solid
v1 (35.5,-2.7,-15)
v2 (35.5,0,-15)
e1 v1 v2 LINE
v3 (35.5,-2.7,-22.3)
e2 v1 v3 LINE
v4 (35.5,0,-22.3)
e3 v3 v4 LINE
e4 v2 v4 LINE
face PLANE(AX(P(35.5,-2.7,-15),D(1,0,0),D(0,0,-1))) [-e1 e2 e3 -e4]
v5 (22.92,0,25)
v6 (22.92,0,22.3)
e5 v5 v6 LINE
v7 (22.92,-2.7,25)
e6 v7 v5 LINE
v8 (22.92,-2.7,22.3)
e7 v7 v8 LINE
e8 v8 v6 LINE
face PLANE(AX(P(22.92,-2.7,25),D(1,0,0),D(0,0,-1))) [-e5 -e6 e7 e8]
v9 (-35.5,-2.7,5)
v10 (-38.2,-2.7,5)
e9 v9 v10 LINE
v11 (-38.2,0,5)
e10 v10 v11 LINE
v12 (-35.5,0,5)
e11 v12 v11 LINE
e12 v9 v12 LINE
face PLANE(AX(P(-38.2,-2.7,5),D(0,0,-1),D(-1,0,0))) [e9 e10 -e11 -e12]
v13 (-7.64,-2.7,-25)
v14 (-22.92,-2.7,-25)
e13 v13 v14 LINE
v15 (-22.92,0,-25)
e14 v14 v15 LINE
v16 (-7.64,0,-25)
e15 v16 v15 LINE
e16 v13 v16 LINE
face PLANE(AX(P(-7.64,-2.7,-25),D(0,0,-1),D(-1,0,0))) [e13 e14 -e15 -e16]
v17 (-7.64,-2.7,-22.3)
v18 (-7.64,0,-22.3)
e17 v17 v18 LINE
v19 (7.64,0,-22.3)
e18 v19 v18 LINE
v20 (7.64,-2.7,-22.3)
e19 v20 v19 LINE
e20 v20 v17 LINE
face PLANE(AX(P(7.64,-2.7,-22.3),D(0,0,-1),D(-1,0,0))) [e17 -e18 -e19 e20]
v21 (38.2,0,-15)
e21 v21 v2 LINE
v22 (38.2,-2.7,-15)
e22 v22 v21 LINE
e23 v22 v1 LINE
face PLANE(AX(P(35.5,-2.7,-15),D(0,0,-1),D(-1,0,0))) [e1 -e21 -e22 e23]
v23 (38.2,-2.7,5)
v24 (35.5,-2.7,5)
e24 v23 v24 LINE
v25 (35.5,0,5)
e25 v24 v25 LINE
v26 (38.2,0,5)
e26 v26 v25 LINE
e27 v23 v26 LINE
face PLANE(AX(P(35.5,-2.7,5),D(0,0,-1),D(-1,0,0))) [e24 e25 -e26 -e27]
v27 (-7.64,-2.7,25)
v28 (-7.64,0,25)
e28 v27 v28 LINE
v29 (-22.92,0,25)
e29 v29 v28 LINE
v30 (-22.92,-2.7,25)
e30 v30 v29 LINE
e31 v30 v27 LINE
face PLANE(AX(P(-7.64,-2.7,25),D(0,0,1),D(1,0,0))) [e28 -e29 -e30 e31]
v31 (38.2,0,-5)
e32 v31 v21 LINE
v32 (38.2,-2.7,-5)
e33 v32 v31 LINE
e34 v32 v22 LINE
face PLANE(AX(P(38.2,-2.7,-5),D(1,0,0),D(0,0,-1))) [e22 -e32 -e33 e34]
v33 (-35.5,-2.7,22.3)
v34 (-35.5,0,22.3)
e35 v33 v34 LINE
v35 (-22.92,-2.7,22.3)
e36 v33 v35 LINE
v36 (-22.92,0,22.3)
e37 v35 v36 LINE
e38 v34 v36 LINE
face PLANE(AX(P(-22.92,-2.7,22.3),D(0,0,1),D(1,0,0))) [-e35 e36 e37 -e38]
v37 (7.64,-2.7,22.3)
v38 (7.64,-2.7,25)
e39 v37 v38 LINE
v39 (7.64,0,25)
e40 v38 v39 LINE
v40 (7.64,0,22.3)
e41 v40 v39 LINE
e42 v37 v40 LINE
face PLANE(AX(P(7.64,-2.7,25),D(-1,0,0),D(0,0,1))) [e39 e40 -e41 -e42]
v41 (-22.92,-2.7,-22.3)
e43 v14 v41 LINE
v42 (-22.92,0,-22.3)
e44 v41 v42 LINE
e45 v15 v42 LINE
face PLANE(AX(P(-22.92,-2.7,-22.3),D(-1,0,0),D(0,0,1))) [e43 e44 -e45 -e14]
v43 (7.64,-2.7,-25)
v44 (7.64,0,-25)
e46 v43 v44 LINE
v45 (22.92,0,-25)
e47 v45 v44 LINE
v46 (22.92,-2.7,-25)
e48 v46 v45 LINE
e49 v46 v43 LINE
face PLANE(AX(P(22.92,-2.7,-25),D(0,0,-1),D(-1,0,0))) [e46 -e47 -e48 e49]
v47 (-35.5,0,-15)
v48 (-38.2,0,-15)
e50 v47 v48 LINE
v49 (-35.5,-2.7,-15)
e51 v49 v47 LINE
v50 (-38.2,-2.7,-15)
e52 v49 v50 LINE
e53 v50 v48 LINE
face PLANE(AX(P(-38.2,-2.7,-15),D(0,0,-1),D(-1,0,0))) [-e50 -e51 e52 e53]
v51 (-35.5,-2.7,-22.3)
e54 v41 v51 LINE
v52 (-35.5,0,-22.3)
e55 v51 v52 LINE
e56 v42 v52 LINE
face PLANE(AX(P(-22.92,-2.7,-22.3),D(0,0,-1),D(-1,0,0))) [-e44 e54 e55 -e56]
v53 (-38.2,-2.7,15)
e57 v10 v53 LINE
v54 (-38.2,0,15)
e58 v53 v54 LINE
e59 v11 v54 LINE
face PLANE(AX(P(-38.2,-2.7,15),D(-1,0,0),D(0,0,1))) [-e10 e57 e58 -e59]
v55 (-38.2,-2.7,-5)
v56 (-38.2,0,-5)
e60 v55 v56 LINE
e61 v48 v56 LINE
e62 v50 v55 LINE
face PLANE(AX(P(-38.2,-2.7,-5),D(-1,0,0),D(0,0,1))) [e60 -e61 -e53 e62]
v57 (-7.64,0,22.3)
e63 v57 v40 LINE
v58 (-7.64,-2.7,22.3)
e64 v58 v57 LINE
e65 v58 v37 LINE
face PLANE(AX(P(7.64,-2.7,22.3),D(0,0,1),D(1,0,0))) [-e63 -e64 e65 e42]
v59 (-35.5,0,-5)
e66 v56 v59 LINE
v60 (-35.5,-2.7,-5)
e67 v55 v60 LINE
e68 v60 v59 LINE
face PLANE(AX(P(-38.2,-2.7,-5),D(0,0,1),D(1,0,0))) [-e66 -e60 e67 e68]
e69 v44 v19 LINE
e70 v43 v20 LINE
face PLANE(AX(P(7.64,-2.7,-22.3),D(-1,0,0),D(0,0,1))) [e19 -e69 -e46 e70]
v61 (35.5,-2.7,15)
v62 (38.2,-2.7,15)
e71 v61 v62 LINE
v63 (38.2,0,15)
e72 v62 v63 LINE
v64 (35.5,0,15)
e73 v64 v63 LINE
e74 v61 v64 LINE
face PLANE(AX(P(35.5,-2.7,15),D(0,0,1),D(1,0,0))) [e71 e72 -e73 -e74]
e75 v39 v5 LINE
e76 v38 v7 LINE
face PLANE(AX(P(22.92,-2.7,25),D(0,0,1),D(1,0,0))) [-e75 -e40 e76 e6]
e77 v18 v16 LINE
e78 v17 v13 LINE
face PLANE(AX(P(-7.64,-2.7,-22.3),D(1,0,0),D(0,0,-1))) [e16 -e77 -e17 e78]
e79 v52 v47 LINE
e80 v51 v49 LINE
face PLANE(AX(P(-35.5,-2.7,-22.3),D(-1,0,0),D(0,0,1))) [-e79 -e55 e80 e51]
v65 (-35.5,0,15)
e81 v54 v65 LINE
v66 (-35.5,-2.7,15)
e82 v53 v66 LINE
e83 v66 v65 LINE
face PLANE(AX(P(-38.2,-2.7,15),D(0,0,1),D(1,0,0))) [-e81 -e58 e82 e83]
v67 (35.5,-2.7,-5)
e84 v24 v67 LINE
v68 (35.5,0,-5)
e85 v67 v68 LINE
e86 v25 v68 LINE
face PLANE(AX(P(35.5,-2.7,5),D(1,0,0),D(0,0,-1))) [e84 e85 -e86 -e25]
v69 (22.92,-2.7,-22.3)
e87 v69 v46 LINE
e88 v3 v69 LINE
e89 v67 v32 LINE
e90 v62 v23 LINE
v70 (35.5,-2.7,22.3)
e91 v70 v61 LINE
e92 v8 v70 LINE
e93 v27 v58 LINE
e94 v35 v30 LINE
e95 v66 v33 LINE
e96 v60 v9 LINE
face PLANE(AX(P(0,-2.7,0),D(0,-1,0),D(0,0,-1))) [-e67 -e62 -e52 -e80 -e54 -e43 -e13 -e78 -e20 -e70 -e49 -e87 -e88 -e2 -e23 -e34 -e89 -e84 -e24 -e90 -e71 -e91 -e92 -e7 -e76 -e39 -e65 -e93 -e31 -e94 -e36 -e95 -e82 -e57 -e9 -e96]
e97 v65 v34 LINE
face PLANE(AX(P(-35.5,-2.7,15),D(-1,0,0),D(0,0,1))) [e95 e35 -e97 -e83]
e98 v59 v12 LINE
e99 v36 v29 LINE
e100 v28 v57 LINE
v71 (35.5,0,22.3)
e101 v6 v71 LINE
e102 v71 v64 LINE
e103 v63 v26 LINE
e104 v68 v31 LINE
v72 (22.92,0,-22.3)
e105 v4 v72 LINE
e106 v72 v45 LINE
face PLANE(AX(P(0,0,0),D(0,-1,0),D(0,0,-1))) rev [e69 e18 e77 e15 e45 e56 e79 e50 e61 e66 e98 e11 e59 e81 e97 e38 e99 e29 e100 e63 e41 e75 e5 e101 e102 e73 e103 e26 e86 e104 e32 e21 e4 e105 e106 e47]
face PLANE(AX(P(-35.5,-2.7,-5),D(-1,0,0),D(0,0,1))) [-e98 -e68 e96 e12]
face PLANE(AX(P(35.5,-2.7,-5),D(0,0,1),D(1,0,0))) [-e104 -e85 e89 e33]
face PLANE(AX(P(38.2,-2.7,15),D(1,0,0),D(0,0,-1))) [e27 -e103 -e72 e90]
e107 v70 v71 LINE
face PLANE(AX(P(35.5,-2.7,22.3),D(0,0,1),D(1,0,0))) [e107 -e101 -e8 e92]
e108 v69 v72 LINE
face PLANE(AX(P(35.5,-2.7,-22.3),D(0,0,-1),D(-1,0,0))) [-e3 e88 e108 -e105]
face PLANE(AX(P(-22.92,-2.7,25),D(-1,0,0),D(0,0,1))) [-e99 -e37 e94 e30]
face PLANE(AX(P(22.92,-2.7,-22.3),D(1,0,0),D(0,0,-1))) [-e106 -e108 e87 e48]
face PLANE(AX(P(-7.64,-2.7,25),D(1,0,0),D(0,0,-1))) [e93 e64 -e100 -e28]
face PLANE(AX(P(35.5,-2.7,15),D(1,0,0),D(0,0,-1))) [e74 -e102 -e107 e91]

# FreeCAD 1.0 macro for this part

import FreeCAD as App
import Part
import Sketcher
Q = App.Units.Quantity


def add_polygon(sketch, points):
    """Adds a closed chain of lines whose ends are joined by coincident constraints."""
    first, n = sketch.GeometryCount, len(points)
    for a, b in zip(points, points[1:] + points[:1]):
        sketch.addGeometry(Part.LineSegment(App.Vector(*a, 0), App.Vector(*b, 0)), False)
    for i in range(n):
        sketch.addConstraint(Sketcher.Constraint("Coincident", first + i, 2, first + (i + 1) % n, 1))

doc = App.newDocument("Part")
body = doc.addObject("PartDesign::Body", "Body")

sketch1 = body.newObject("Sketcher::SketchObject", "Sketch")
sketch1.AttachmentSupport = (doc.getObject("XZ_Plane"), [""])
sketch1.MapMode = "FlatFace"
add_polygon(sketch1, [(-22.9, -22.3), (-35.5, -22.3), (-35.5, -15), (-38.2, -15), (-38.2, -5), (-35.5, -5), (-35.5, 5), (-38.2, 5), (-38.2, 15), (-35.5, 15), (-35.5, 22.3), (-22.9, 22.3), (-22.9, 25), (-7.6, 25), (-7.6, 22.3), (7.6, 22.3), (7.6, 25), (22.9, 25), (22.9, 22.3), (35.5, 22.3), (35.5, 15), (38.2, 15), (38.2, 5), (35.5, 5), (35.5, -5), (38.2, -5), (38.2, -15), (35.5, -15), (35.5, -22.3), (22.9, -22.3), (22.9, -25), (7.6, -25), (7.6, -22.3), (-7.6, -22.3), (-7.6, -25), (-22.9, -25)])
sketch1.addConstraint(Sketcher.Constraint("Horizontal", 0))
sketch1.addConstraint(Sketcher.Constraint("Vertical", 1))
sketch1.addConstraint(Sketcher.Constraint("Horizontal", 2))
sketch1.addConstraint(Sketcher.Constraint("Vertical", 3))
sketch1.addConstraint(Sketcher.Constraint("Horizontal", 4))
sketch1.addConstraint(Sketcher.Constraint("Vertical", 5))
sketch1.addConstraint(Sketcher.Constraint("Horizontal", 6))
sketch1.addConstraint(Sketcher.Constraint("Vertical", 7))
sketch1.addConstraint(Sketcher.Constraint("Horizontal", 8))
sketch1.addConstraint(Sketcher.Constraint("Vertical", 9))
sketch1.addConstraint(Sketcher.Constraint("Horizontal", 10))
sketch1.addConstraint(Sketcher.Constraint("Vertical", 11))
sketch1.addConstraint(Sketcher.Constraint("Horizontal", 12))
sketch1.addConstraint(Sketcher.Constraint("Vertical", 13))
sketch1.addConstraint(Sketcher.Constraint("Horizontal", 14))
sketch1.addConstraint(Sketcher.Constraint("Vertical", 15))
sketch1.addConstraint(Sketcher.Constraint("Horizontal", 16))
sketch1.addConstraint(Sketcher.Constraint("Vertical", 17))
sketch1.addConstraint(Sketcher.Constraint("Horizontal", 18))
sketch1.addConstraint(Sketcher.Constraint("Vertical", 19))
sketch1.addConstraint(Sketcher.Constraint("Horizontal", 20))
sketch1.addConstraint(Sketcher.Constraint("Vertical", 21))
sketch1.addConstraint(Sketcher.Constraint("Horizontal", 22))
sketch1.addConstraint(Sketcher.Constraint("Vertical", 23))
sketch1.addConstraint(Sketcher.Constraint("Horizontal", 24))
sketch1.addConstraint(Sketcher.Constraint("Vertical", 25))
sketch1.addConstraint(Sketcher.Constraint("Horizontal", 26))
sketch1.addConstraint(Sketcher.Constraint("Vertical", 27))
sketch1.addConstraint(Sketcher.Constraint("Horizontal", 28))
sketch1.addConstraint(Sketcher.Constraint("Vertical", 29))
sketch1.addConstraint(Sketcher.Constraint("Horizontal", 30))
sketch1.addConstraint(Sketcher.Constraint("Vertical", 31))
sketch1.addConstraint(Sketcher.Constraint("Horizontal", 32))
sketch1.addConstraint(Sketcher.Constraint("Vertical", 33))
sketch1.addConstraint(Sketcher.Constraint("Horizontal", 34))
sketch1.addConstraint(Sketcher.Constraint("Vertical", 35))
sketch1.addConstraint(Sketcher.Constraint("Symmetric", 0, 2, 18, 2, -1, 1))
sketch1.addConstraint(Sketcher.Constraint("Symmetric", 2, 2, 20, 2, -1, 1))
sketch1.addConstraint(Sketcher.Constraint("Symmetric", 4, 2, 22, 2, -1, 1))
sketch1.addConstraint(Sketcher.Constraint("Symmetric", 6, 2, 24, 2, -1, 1))
sketch1.addConstraint(Sketcher.Constraint("Symmetric", 8, 2, 26, 2, -1, 1))
sketch1.addConstraint(Sketcher.Constraint("Symmetric", 10, 2, 28, 2, -1, 1))
sketch1.addConstraint(Sketcher.Constraint("Symmetric", 12, 2, 30, 2, -1, 1))
sketch1.addConstraint(Sketcher.Constraint("Symmetric", 14, 2, 32, 2, -1, 1))
sketch1.addConstraint(Sketcher.Constraint("Symmetric", 16, 2, 34, 2, -1, 1))
sketch1.addConstraint(Sketcher.Constraint("Symmetric", 12, 2, 15, 2, -2))
sketch1.addConstraint(Sketcher.Constraint("Symmetric", 10, 2, 17, 2, -2))
sketch1.addConstraint(Sketcher.Constraint("Symmetric", 8, 2, 19, 2, -2))
sketch1.addConstraint(Sketcher.Constraint("Symmetric", 6, 2, 21, 2, -2))
sketch1.addConstraint(Sketcher.Constraint("Horizontal", 10, 2, 13, 2))
sketch1.addConstraint(Sketcher.Constraint("Vertical", 1, 2, 4, 2))
sketch1.addConstraint(Sketcher.Constraint("Equal", 12, 14))
sketch1.addConstraint(Sketcher.Constraint("Equal", 3, 5))
sketch1.addConstraint(Sketcher.Constraint("Equal", 26, 11))
sketch1.addConstraint(Sketcher.Constraint("DistanceY", 3, 1, 3, 2, Q("10 mm")))
sketch1.addConstraint(Sketcher.Constraint("DistanceX", 2, 2, 2, 1, Q("2.7 mm")))
sketch1.addConstraint(Sketcher.Constraint("DistanceY", 1, 1, 1, 2, Q("7.3 mm")))
sketch1.addConstraint(Sketcher.Constraint("DistanceX", 0, 2, 0, 1, Q("12.58 mm")))
sketch1.addConstraint(Sketcher.Constraint("DistanceX", 12, 1, 12, 2, Q("15.28 mm")))
pad1 = body.newObject("PartDesign::Pad", "Pad")
pad1.Profile = sketch1
pad1.Length = 2.7

doc.recompute()
